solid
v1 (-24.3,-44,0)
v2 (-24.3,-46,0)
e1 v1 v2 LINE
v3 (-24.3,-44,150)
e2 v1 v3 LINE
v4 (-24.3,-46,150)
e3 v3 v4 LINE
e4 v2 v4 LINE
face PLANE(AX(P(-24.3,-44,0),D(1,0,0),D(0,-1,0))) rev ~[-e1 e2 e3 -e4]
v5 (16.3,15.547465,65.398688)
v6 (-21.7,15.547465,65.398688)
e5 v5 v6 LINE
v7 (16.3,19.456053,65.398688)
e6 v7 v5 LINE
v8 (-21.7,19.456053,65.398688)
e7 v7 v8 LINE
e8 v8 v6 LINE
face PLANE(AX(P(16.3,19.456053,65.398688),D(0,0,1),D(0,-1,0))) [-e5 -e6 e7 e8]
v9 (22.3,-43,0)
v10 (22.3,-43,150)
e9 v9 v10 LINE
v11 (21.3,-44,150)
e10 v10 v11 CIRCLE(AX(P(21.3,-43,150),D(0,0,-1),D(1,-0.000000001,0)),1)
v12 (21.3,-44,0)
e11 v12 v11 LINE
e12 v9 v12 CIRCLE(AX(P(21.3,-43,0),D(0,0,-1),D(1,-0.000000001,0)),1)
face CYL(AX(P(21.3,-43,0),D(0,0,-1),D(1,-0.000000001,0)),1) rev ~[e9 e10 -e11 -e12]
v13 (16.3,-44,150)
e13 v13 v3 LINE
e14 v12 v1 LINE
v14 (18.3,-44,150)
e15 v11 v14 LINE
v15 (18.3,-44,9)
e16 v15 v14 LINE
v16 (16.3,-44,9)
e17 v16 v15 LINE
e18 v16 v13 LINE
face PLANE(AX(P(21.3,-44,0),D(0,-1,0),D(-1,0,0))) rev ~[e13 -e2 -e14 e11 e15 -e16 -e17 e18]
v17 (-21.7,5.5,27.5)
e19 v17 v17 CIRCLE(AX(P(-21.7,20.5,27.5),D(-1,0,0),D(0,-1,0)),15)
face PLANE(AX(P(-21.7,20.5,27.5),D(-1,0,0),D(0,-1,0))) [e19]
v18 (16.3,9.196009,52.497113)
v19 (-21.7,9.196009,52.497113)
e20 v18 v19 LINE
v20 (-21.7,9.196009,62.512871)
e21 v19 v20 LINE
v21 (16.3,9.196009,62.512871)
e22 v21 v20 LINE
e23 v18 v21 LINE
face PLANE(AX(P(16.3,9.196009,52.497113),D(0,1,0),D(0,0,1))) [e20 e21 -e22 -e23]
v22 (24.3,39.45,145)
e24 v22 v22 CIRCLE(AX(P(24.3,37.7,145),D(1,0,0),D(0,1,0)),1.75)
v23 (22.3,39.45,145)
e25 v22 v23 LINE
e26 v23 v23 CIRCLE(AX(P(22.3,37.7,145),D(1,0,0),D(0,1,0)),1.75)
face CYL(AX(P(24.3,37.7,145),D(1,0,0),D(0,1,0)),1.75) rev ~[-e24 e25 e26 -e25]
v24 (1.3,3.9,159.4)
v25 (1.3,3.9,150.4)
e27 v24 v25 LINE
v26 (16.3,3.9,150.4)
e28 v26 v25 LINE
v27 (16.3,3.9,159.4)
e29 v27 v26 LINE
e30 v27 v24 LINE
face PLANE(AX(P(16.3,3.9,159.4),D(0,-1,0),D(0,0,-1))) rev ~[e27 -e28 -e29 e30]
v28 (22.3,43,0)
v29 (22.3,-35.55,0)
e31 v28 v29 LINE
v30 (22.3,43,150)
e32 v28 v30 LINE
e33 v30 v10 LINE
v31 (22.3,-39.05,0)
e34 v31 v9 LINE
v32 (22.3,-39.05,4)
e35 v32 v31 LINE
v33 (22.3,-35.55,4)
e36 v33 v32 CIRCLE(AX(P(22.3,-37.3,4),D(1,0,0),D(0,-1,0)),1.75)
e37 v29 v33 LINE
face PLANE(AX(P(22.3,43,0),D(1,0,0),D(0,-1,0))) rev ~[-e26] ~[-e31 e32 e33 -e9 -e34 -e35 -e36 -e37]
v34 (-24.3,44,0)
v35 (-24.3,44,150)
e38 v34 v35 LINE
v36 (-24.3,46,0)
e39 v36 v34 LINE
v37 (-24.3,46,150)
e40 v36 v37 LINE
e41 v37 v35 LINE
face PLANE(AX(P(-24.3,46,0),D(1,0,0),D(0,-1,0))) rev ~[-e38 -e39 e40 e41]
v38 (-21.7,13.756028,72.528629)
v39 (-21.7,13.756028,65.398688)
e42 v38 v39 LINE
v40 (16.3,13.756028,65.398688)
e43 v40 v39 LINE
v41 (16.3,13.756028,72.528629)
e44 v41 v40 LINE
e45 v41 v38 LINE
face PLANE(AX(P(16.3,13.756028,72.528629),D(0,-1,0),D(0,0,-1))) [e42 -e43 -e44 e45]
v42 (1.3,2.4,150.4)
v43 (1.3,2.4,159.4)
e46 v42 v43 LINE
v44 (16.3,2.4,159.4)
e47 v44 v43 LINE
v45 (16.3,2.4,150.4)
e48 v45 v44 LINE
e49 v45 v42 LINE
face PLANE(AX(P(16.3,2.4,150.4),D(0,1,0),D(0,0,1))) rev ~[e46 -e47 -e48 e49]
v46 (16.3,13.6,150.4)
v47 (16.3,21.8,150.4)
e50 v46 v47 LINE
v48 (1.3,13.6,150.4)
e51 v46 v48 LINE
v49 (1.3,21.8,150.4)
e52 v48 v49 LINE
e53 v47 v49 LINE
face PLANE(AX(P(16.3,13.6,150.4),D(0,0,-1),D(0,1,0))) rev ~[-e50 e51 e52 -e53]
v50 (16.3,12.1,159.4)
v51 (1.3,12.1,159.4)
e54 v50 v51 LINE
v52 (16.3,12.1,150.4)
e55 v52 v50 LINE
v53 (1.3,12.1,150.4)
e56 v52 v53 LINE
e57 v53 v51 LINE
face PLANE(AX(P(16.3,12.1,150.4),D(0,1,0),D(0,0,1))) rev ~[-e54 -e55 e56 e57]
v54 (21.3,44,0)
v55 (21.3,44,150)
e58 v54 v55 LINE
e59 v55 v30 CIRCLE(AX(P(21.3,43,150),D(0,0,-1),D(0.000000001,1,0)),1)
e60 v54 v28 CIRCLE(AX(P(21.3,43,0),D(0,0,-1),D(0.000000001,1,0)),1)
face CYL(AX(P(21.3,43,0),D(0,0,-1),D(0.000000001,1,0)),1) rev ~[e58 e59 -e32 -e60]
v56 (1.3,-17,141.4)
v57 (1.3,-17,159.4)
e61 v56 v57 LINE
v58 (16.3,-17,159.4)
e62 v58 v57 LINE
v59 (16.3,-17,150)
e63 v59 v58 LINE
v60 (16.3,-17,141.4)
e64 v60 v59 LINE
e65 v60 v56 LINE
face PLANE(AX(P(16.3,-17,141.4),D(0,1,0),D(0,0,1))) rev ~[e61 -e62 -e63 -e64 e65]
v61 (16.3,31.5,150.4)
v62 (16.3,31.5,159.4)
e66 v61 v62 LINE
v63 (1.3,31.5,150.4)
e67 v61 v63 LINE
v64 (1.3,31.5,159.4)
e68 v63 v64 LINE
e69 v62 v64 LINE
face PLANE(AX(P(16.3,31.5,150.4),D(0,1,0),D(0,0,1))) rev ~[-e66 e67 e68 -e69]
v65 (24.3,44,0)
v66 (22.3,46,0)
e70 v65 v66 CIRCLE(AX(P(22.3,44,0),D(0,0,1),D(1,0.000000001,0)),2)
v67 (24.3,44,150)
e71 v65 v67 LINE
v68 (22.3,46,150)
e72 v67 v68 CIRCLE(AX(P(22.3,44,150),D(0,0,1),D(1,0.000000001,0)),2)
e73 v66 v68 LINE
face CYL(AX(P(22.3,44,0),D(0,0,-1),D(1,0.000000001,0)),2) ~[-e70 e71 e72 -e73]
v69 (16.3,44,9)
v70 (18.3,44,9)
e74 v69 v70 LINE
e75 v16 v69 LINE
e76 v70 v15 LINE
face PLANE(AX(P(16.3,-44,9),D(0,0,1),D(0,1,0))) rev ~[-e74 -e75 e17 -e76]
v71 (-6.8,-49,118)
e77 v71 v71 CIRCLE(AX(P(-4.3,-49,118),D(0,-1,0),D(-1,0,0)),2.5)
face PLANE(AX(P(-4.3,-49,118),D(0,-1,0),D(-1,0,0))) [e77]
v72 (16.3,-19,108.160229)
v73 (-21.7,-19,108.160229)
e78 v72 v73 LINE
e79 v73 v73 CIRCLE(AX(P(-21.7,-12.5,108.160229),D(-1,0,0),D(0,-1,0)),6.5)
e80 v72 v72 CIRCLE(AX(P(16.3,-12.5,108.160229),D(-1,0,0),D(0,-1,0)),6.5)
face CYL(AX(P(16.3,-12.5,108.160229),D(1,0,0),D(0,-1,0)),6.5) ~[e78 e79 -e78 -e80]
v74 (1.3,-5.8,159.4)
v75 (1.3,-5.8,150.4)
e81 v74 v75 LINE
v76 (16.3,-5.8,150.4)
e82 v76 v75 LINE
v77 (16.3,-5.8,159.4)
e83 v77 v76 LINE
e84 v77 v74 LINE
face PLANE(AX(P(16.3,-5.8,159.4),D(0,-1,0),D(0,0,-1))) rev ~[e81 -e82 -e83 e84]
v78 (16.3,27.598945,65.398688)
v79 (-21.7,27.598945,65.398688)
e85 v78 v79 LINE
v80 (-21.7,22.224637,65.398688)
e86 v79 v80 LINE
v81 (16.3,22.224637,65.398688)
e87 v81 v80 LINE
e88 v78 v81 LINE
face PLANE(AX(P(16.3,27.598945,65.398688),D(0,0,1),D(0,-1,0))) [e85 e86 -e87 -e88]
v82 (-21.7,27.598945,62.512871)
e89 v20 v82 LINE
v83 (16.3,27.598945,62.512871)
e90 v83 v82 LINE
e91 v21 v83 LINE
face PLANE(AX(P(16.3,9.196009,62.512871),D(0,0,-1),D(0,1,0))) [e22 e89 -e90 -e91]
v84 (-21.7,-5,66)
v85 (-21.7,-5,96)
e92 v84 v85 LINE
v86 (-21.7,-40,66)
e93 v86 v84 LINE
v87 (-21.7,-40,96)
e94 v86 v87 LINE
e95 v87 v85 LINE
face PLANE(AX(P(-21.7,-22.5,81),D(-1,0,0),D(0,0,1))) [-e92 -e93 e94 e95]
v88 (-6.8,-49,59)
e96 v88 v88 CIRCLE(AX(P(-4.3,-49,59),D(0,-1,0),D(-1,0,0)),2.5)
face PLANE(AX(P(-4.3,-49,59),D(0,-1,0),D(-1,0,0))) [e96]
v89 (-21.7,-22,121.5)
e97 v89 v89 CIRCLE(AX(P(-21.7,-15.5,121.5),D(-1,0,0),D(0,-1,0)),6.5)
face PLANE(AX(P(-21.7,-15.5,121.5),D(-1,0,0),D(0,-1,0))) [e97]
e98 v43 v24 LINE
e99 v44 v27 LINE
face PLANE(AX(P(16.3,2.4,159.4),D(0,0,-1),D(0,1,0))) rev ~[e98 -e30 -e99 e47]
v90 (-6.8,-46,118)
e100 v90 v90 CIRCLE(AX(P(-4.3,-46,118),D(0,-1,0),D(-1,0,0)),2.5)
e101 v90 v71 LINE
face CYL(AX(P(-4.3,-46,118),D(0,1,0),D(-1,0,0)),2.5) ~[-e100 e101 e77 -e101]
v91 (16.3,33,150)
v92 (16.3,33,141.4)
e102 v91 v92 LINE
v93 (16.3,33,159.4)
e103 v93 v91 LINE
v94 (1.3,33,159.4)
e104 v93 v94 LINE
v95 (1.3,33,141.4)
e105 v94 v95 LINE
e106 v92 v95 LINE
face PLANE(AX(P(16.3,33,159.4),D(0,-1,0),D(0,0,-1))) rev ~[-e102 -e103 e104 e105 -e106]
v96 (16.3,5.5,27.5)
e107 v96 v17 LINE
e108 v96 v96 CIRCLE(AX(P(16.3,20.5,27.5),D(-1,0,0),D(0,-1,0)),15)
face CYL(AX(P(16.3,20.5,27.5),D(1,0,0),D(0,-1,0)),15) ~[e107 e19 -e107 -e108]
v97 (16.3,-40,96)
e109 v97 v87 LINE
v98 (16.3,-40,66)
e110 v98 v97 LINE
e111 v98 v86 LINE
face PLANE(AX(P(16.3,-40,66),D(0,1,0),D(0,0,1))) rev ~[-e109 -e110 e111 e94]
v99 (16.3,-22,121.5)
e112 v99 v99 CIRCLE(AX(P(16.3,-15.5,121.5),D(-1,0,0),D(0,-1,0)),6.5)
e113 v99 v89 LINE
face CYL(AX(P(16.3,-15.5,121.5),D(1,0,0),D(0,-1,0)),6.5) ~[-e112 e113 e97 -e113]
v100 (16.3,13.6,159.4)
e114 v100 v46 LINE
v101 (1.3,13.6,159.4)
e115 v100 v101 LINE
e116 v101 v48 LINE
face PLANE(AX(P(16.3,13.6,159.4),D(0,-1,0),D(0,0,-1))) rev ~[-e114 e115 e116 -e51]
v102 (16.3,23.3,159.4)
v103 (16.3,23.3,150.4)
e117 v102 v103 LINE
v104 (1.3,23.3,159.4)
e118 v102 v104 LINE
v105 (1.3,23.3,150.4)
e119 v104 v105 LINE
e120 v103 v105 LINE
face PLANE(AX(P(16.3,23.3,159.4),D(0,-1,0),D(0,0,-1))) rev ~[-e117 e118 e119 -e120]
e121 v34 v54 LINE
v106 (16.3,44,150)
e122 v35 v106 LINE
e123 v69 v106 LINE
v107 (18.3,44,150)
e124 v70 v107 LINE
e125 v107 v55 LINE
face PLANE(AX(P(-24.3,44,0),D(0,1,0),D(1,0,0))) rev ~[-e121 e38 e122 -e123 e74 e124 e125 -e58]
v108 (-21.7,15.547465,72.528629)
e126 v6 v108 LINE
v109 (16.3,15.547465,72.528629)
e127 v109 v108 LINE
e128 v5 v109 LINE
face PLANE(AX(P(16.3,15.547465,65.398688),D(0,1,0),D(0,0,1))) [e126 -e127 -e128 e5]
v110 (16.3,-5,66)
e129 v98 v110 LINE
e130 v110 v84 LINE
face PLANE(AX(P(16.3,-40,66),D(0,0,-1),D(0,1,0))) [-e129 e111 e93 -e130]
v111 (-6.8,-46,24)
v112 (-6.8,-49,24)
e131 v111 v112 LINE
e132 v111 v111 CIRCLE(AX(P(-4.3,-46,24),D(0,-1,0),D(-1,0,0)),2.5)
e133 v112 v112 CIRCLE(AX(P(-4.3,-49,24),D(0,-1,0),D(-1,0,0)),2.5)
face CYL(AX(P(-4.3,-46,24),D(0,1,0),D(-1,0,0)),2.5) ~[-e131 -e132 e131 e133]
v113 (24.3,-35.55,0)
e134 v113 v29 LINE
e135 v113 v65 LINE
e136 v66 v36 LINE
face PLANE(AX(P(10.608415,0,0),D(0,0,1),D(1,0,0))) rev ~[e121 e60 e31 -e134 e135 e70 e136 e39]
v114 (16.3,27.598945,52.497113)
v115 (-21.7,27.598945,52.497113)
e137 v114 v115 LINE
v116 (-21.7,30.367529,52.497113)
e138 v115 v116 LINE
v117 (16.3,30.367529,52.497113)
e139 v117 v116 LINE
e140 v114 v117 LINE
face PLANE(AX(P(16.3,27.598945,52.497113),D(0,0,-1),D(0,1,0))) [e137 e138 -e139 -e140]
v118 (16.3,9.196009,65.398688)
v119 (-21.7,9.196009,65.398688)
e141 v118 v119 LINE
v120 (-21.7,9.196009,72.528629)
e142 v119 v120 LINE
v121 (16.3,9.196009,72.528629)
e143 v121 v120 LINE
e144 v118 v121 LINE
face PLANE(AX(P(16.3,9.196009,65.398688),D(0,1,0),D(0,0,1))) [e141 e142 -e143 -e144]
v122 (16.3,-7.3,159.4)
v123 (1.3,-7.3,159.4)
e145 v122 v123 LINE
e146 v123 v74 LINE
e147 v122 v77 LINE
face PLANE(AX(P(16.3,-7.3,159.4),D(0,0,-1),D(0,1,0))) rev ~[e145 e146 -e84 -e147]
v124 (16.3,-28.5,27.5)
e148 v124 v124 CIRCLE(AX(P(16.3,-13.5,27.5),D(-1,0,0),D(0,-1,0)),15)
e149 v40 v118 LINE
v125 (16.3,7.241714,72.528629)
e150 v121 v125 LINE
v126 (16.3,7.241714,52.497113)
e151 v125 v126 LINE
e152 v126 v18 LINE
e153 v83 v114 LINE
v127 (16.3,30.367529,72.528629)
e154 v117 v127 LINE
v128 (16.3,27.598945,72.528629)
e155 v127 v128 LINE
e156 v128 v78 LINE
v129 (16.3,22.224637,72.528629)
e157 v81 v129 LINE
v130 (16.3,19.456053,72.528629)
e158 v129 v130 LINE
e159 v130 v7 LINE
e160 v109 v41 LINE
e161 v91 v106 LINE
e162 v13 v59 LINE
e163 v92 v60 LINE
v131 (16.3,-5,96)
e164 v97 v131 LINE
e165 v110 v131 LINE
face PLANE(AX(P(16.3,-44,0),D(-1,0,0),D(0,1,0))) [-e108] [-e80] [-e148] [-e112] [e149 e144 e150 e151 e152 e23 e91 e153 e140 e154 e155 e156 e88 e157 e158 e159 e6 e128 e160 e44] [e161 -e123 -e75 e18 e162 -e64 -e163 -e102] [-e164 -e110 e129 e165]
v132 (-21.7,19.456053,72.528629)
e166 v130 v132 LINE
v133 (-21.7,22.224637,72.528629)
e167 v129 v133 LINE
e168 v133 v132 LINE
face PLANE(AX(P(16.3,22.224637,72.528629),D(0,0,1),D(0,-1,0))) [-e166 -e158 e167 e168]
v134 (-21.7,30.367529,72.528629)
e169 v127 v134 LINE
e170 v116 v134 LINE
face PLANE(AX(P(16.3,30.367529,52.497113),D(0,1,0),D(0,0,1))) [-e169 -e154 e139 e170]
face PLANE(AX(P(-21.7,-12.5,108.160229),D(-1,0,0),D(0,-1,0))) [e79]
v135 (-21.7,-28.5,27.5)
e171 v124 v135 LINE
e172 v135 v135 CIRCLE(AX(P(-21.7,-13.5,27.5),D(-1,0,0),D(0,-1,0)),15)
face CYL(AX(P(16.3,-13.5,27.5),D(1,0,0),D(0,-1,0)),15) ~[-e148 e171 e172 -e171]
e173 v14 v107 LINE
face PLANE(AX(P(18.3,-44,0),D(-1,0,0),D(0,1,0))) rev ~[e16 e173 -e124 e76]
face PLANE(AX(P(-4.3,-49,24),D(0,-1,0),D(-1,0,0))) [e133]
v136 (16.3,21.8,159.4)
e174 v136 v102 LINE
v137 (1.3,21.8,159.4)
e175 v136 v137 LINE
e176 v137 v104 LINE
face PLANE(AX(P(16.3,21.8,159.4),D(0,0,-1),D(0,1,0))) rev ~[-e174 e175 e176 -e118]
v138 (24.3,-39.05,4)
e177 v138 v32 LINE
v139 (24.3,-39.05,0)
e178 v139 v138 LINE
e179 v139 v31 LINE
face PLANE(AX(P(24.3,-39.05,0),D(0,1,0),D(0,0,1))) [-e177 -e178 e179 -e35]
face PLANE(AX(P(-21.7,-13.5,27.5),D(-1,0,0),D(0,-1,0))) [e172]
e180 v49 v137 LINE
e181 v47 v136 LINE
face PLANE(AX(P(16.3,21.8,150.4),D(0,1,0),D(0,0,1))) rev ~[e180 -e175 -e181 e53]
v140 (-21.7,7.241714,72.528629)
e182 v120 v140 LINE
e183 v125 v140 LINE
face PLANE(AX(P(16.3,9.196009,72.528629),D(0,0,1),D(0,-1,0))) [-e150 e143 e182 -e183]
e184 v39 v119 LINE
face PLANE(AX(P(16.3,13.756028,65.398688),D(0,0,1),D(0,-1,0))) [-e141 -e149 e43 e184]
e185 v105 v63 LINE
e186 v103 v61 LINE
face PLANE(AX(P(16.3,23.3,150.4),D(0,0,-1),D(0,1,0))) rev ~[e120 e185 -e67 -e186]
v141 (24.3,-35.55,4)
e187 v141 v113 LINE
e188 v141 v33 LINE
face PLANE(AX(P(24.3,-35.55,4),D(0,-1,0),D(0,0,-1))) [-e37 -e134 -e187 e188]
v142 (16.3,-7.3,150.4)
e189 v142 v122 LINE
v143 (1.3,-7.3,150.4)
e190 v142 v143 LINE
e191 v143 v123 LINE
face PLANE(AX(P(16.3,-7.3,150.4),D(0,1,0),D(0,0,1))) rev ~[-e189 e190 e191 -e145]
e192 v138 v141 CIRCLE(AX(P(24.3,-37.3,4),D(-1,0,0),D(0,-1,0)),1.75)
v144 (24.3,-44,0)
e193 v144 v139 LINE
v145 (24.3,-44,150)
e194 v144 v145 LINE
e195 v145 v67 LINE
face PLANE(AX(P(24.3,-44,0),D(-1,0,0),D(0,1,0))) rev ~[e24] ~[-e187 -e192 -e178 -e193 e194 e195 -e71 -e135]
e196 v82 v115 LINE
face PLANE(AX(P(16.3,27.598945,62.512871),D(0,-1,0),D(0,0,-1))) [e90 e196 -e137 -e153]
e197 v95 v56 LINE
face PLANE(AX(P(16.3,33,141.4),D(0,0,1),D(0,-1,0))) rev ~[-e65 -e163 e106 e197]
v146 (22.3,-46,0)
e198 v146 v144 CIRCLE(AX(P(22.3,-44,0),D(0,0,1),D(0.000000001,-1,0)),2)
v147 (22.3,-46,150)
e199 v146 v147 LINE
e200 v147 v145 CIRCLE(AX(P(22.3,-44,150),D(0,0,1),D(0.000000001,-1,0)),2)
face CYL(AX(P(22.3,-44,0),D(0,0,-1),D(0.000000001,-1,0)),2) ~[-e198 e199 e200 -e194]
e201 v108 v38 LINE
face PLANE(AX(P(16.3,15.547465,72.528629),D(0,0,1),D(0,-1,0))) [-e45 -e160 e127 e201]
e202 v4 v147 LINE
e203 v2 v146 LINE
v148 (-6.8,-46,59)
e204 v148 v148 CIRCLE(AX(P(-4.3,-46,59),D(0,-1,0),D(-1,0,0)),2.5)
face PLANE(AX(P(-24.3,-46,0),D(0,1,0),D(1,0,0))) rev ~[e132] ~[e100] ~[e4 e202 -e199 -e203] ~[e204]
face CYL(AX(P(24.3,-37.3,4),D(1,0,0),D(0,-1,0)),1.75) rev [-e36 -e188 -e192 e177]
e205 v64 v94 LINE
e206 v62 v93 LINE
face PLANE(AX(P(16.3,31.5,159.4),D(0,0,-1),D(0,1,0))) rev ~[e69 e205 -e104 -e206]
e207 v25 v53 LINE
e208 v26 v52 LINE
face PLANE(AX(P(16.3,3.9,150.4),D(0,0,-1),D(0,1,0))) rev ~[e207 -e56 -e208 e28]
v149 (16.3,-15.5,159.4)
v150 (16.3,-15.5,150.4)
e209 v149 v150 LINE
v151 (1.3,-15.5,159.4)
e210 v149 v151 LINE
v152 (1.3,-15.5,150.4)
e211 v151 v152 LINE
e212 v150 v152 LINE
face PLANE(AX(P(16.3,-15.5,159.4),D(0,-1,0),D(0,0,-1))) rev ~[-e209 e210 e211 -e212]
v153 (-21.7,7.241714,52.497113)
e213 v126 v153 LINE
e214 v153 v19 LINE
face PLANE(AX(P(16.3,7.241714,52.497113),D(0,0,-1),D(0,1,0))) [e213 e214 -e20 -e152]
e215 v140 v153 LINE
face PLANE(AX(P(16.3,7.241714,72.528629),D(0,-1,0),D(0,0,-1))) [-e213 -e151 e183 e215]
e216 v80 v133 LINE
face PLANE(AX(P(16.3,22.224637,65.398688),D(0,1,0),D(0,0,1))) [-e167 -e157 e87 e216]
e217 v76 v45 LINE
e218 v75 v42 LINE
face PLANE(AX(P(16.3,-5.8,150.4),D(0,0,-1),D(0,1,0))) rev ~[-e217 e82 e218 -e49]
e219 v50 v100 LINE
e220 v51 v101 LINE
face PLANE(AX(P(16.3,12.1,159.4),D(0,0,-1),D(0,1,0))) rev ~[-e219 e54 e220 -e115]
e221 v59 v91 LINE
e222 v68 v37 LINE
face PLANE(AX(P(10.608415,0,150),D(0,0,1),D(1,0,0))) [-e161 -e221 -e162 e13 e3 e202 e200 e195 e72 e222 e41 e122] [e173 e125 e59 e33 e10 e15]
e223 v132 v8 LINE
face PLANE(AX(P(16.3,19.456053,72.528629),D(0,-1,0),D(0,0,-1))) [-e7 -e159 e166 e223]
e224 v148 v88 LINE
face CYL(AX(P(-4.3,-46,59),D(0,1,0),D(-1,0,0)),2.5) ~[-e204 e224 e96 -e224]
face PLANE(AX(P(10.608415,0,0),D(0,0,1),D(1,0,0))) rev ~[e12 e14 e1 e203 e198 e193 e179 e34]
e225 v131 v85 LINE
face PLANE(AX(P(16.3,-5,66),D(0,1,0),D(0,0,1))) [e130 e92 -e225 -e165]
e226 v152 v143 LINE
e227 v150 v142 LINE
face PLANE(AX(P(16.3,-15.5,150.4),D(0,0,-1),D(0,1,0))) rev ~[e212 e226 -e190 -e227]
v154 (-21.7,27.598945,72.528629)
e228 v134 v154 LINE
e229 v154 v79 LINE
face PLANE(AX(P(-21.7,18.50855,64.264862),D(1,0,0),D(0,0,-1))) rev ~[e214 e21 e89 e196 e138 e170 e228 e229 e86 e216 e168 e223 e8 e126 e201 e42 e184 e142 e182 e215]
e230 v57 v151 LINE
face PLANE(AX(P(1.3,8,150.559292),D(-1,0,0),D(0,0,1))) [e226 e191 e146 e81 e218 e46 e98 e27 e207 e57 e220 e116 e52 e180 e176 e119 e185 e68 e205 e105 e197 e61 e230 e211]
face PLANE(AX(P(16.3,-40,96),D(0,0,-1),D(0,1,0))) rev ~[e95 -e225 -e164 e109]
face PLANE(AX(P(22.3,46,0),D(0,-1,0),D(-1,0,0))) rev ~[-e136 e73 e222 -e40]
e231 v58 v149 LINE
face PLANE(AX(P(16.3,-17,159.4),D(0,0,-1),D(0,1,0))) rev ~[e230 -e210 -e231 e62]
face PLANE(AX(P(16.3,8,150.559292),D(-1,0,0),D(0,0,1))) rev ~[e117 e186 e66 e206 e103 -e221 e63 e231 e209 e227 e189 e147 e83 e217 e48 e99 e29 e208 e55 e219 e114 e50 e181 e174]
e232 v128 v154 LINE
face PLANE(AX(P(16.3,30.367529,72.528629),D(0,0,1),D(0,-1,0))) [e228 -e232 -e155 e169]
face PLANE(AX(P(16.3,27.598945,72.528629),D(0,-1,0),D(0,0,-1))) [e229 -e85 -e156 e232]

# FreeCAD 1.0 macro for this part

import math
import FreeCAD as App
import Part
import Sketcher
Q = App.Units.Quantity

doc = App.newDocument("Part")
body = doc.addObject("PartDesign::Body", "Body")

# Sketch on XY plane
sketch1 = body.newObject("Sketcher::SketchObject", "Sketch")
sketch1.AttachmentSupport = (doc.getObject("XY_Plane"), [""])
sketch1.MapMode = "FlatFace"
sketch1.addGeometry(Part.LineSegment(App.Vector(-24.3, 44, 0), App.Vector(21.3, 44, 0)), False)
sketch1.addGeometry(Part.ArcOfCircle(Part.Circle(App.Vector(21.3, 43, 0), App.Vector(0, 0, 1), 1), math.radians(0), math.radians(90)), False)
sketch1.addGeometry(Part.LineSegment(App.Vector(22.3, 43, 0), App.Vector(22.3, -43, 0)), False)
sketch1.addGeometry(Part.ArcOfCircle(Part.Circle(App.Vector(21.3, -43, 0), App.Vector(0, 0, 1), 1), math.radians(-90), math.radians(0)), False)
sketch1.addGeometry(Part.LineSegment(App.Vector(21.3, -44, 0), App.Vector(-24.3, -44, 0)), False)
sketch1.addGeometry(Part.LineSegment(App.Vector(-24.3, -44, 0), App.Vector(-24.3, -46, 0)), False)
sketch1.addGeometry(Part.LineSegment(App.Vector(-24.3, -46, 0), App.Vector(22.3, -46, 0)), False)
sketch1.addGeometry(Part.ArcOfCircle(Part.Circle(App.Vector(22.3, -44, 0), App.Vector(0, 0, 1), 2), math.radians(-90), math.radians(0)), False)
sketch1.addGeometry(Part.LineSegment(App.Vector(24.3, -44, 0), App.Vector(24.3, 44, 0)), False)
sketch1.addGeometry(Part.ArcOfCircle(Part.Circle(App.Vector(22.3, 44, 0), App.Vector(0, 0, 1), 2), math.radians(0), math.radians(90)), False)
sketch1.addGeometry(Part.LineSegment(App.Vector(22.3, 46, 0), App.Vector(-24.3, 46, 0)), False)
sketch1.addGeometry(Part.LineSegment(App.Vector(-24.3, 46, 0), App.Vector(-24.3, 44, 0)), False)
sketch1.addConstraint(Sketcher.Constraint("Tangent", 0, 2, 1, 2))
sketch1.addConstraint(Sketcher.Constraint("Tangent", 1, 1, 2, 1))
sketch1.addConstraint(Sketcher.Constraint("Tangent", 2, 2, 3, 2))
sketch1.addConstraint(Sketcher.Constraint("Tangent", 3, 1, 4, 1))
sketch1.addConstraint(Sketcher.Constraint("Coincident", 4, 2, 5, 1))
sketch1.addConstraint(Sketcher.Constraint("Coincident", 5, 2, 6, 1))
sketch1.addConstraint(Sketcher.Constraint("Tangent", 6, 2, 7, 1))
sketch1.addConstraint(Sketcher.Constraint("Tangent", 7, 2, 8, 1))
sketch1.addConstraint(Sketcher.Constraint("Tangent", 8, 2, 9, 1))
sketch1.addConstraint(Sketcher.Constraint("Tangent", 9, 2, 10, 1))
sketch1.addConstraint(Sketcher.Constraint("Coincident", 10, 2, 11, 1))
sketch1.addConstraint(Sketcher.Constraint("Coincident", 11, 2, 0, 1))
sketch1.addConstraint(Sketcher.Constraint("Horizontal", 0))
sketch1.addConstraint(Sketcher.Constraint("Vertical", 2))
sketch1.addConstraint(Sketcher.Constraint("Horizontal", 4))
sketch1.addConstraint(Sketcher.Constraint("Vertical", 5))
sketch1.addConstraint(Sketcher.Constraint("Horizontal", 6))
sketch1.addConstraint(Sketcher.Constraint("Vertical", 8))
sketch1.addConstraint(Sketcher.Constraint("Horizontal", 10))
sketch1.addConstraint(Sketcher.Constraint("Vertical", 11))
sketch1.addConstraint(Sketcher.Constraint("Equal", 1, 3))
sketch1.addConstraint(Sketcher.Constraint("Equal", 7, 9))
sketch1.addConstraint(Sketcher.Constraint("Symmetric", 4, 2, 8, 2, -1, 1))
sketch1.addConstraint(Sketcher.Constraint("Symmetric", 7, 2, 11, 2, -1, 1))
sketch1.addConstraint(Sketcher.Constraint("Horizontal", 9, 3, 0, 2))
sketch1.addConstraint(Sketcher.Constraint("Vertical", 9, 3, 1, 1))
sketch1.addConstraint(Sketcher.Constraint("Radius", 1, Q("1 mm")))
sketch1.addConstraint(Sketcher.Constraint("Radius", 7, Q("2 mm")))
sketch1.addConstraint(Sketcher.Constraint("DistanceY", 2, 2, 2, 1, Q("86 mm")))
sketch1.addConstraint(Sketcher.Constraint("DistanceX", 0, 1, 0, 2, Q("45.6 mm")))
pad1 = body.newObject("PartDesign::Pad", "Pad")
pad1.Profile = sketch1
pad1.Length = 150

# Sketch on XY plane
sketch2 = body.newObject("Sketcher::SketchObject", "Sketch001")
sketch2.AttachmentSupport = (doc.getObject("XY_Plane"), [""])
sketch2.MapMode = "FlatFace"
sketch2.addGeometry(Part.LineSegment(App.Vector(18.3, 44, 0), App.Vector(18.3, -44, 0)), False)
sketch2.addGeometry(Part.LineSegment(App.Vector(18.3, -44, 0), App.Vector(16.3, -44, 0)), False)
sketch2.addGeometry(Part.LineSegment(App.Vector(16.3, -44, 0), App.Vector(16.3, 44, 0)), False)
sketch2.addGeometry(Part.LineSegment(App.Vector(16.3, 44, 0), App.Vector(18.3, 44, 0)), False)
sketch2.addConstraint(Sketcher.Constraint("Coincident", 0, 2, 1, 1))
sketch2.addConstraint(Sketcher.Constraint("Coincident", 1, 2, 2, 1))
sketch2.addConstraint(Sketcher.Constraint("Coincident", 2, 2, 3, 1))
sketch2.addConstraint(Sketcher.Constraint("Coincident", 3, 2, 0, 1))
sketch2.addConstraint(Sketcher.Constraint("Vertical", 0))
sketch2.addConstraint(Sketcher.Constraint("Horizontal", 1))
sketch2.addConstraint(Sketcher.Constraint("Vertical", 2))
sketch2.addConstraint(Sketcher.Constraint("Horizontal", 3))
sketch2.addConstraint(Sketcher.Constraint("DistanceX", 1, 2, 1, 1, Q("2 mm")))
sketch2.addConstraint(Sketcher.Constraint("DistanceY", 0, 2, 0, 1, Q("88 mm")))
sketch2.addConstraint(Sketcher.Constraint("DistanceY", 0, 2, -1, 1, Q("44 mm")))
sketch2.addConstraint(Sketcher.Constraint("DistanceX", -1, 1, 0, 2, Q("18.3 mm")))
pad2 = body.newObject("PartDesign::Pad", "Pad001")
pad2.Profile = sketch2
pad2.Length = 150

# Sketch on YZ plane
sketch3 = body.newObject("Sketcher::SketchObject", "Sketch002")
sketch3.AttachmentSupport = (doc.getObject("YZ_Plane"), [""])
sketch3.MapMode = "FlatFace"
sketch3.AttachmentOffset = App.Placement(App.Vector(0, 0, 16.3), App.Rotation())
sketch3.addGeometry(Part.Circle(App.Vector(20.5, 27.5, 0), App.Vector(0, 0, 1), 15), False)
sketch3.addGeometry(Part.Circle(App.Vector(-13.5, 27.5, 0), App.Vector(0, 0, 1), 15), False)
sketch3.addGeometry(Part.Circle(App.Vector(-12.5, 108.2, 0), App.Vector(0, 0, 1), 6.5), False)
sketch3.addGeometry(Part.Circle(App.Vector(-15.5, 121.5, 0), App.Vector(0, 0, 1), 6.5), False)
sketch3.addGeometry(Part.LineSegment(App.Vector(-5, 66, 0), App.Vector(-40, 66, 0)), False)
sketch3.addGeometry(Part.LineSegment(App.Vector(-40, 66, 0), App.Vector(-40, 96, 0)), False)
sketch3.addGeometry(Part.LineSegment(App.Vector(-40, 96, 0), App.Vector(-5, 96, 0)), False)
sketch3.addGeometry(Part.LineSegment(App.Vector(-5, 96, 0), App.Vector(-5, 66, 0)), False)
sketch3.addGeometry(Part.LineSegment(App.Vector(30.4, 72.5, 0), App.Vector(30.4, 52.5, 0)), False)
sketch3.addGeometry(Part.LineSegment(App.Vector(30.4, 52.5, 0), App.Vector(27.6, 52.5, 0)), False)
sketch3.addGeometry(Part.LineSegment(App.Vector(27.6, 52.5, 0), App.Vector(27.6, 62.5, 0)), False)
sketch3.addGeometry(Part.LineSegment(App.Vector(27.6, 62.5, 0), App.Vector(9.2, 62.5, 0)), False)
sketch3.addGeometry(Part.LineSegment(App.Vector(9.2, 62.5, 0), App.Vector(9.2, 52.5, 0)), False)
sketch3.addGeometry(Part.LineSegment(App.Vector(9.2, 52.5, 0), App.Vector(7.2, 52.5, 0)), False)
sketch3.addGeometry(Part.LineSegment(App.Vector(7.2, 52.5, 0), App.Vector(7.2, 72.5, 0)), False)
sketch3.addGeometry(Part.LineSegment(App.Vector(7.2, 72.5, 0), App.Vector(9.2, 72.5, 0)), False)
sketch3.addGeometry(Part.LineSegment(App.Vector(9.2, 72.5, 0), App.Vector(9.2, 65.4, 0)), False)
sketch3.addGeometry(Part.LineSegment(App.Vector(9.2, 65.4, 0), App.Vector(13.8, 65.4, 0)), False)
sketch3.addGeometry(Part.LineSegment(App.Vector(13.8, 65.4, 0), App.Vector(13.8, 72.5, 0)), False)
sketch3.addGeometry(Part.LineSegment(App.Vector(13.8, 72.5, 0), App.Vector(15.5, 72.5, 0)), False)
sketch3.addGeometry(Part.LineSegment(App.Vector(15.5, 72.5, 0), App.Vector(15.5, 65.4, 0)), False)
sketch3.addGeometry(Part.LineSegment(App.Vector(15.5, 65.4, 0), App.Vector(19.5, 65.4, 0)), False)
sketch3.addGeometry(Part.LineSegment(App.Vector(19.5, 65.4, 0), App.Vector(19.5, 72.5, 0)), False)
sketch3.addGeometry(Part.LineSegment(App.Vector(19.5, 72.5, 0), App.Vector(22.2, 72.5, 0)), False)
sketch3.addGeometry(Part.LineSegment(App.Vector(22.2, 72.5, 0), App.Vector(22.2, 65.4, 0)), False)
sketch3.addGeometry(Part.LineSegment(App.Vector(22.2, 65.4, 0), App.Vector(27.6, 65.4, 0)), False)
sketch3.addGeometry(Part.LineSegment(App.Vector(27.6, 65.4, 0), App.Vector(27.6, 72.5, 0)), False)
sketch3.addGeometry(Part.LineSegment(App.Vector(27.6, 72.5, 0), App.Vector(30.4, 72.5, 0)), False)
sketch3.addConstraint(Sketcher.Constraint("Coincident", 4, 2, 5, 1))
sketch3.addConstraint(Sketcher.Constraint("Coincident", 5, 2, 6, 1))
sketch3.addConstraint(Sketcher.Constraint("Coincident", 6, 2, 7, 1))
sketch3.addConstraint(Sketcher.Constraint("Coincident", 7, 2, 4, 1))
sketch3.addConstraint(Sketcher.Constraint("Coincident", 8, 2, 9, 1))
sketch3.addConstraint(Sketcher.Constraint("Coincident", 9, 2, 10, 1))
sketch3.addConstraint(Sketcher.Constraint("Coincident", 10, 2, 11, 1))
sketch3.addConstraint(Sketcher.Constraint("Coincident", 11, 2, 12, 1))
sketch3.addConstraint(Sketcher.Constraint("Coincident", 12, 2, 13, 1))
sketch3.addConstraint(Sketcher.Constraint("Coincident", 13, 2, 14, 1))
sketch3.addConstraint(Sketcher.Constraint("Coincident", 14, 2, 15, 1))
sketch3.addConstraint(Sketcher.Constraint("Coincident", 15, 2, 16, 1))
sketch3.addConstraint(Sketcher.Constraint("Coincident", 16, 2, 17, 1))
sketch3.addConstraint(Sketcher.Constraint("Coincident", 17, 2, 18, 1))
sketch3.addConstraint(Sketcher.Constraint("Coincident", 18, 2, 19, 1))
sketch3.addConstraint(Sketcher.Constraint("Coincident", 19, 2, 20, 1))
sketch3.addConstraint(Sketcher.Constraint("Coincident", 20, 2, 21, 1))
sketch3.addConstraint(Sketcher.Constraint("Coincident", 21, 2, 22, 1))
sketch3.addConstraint(Sketcher.Constraint("Coincident", 22, 2, 23, 1))
sketch3.addConstraint(Sketcher.Constraint("Coincident", 23, 2, 24, 1))
sketch3.addConstraint(Sketcher.Constraint("Coincident", 24, 2, 25, 1))
sketch3.addConstraint(Sketcher.Constraint("Coincident", 25, 2, 26, 1))
sketch3.addConstraint(Sketcher.Constraint("Coincident", 26, 2, 27, 1))
sketch3.addConstraint(Sketcher.Constraint("Coincident", 27, 2, 8, 1))
sketch3.addConstraint(Sketcher.Constraint("Horizontal", 4))
sketch3.addConstraint(Sketcher.Constraint("Vertical", 5))
sketch3.addConstraint(Sketcher.Constraint("Horizontal", 6))
sketch3.addConstraint(Sketcher.Constraint("Vertical", 7))
sketch3.addConstraint(Sketcher.Constraint("Vertical", 8))
sketch3.addConstraint(Sketcher.Constraint("Horizontal", 9))
sketch3.addConstraint(Sketcher.Constraint("Vertical", 10))
sketch3.addConstraint(Sketcher.Constraint("Horizontal", 11))
sketch3.addConstraint(Sketcher.Constraint("Vertical", 12))
sketch3.addConstraint(Sketcher.Constraint("Horizontal", 13))
sketch3.addConstraint(Sketcher.Constraint("Vertical", 14))
sketch3.addConstraint(Sketcher.Constraint("Horizontal", 15))
sketch3.addConstraint(Sketcher.Constraint("Vertical", 16))
sketch3.addConstraint(Sketcher.Constraint("Horizontal", 17))
sketch3.addConstraint(Sketcher.Constraint("Vertical", 18))
sketch3.addConstraint(Sketcher.Constraint("Horizontal", 19))
sketch3.addConstraint(Sketcher.Constraint("Vertical", 20))
sketch3.addConstraint(Sketcher.Constraint("Horizontal", 21))
sketch3.addConstraint(Sketcher.Constraint("Vertical", 22))
sketch3.addConstraint(Sketcher.Constraint("Horizontal", 23))
sketch3.addConstraint(Sketcher.Constraint("Vertical", 24))
sketch3.addConstraint(Sketcher.Constraint("Horizontal", 25))
sketch3.addConstraint(Sketcher.Constraint("Vertical", 26))
sketch3.addConstraint(Sketcher.Constraint("Horizontal", 27))
sketch3.addConstraint(Sketcher.Constraint("Equal", 0, 1))
sketch3.addConstraint(Sketcher.Constraint("Equal", 2, 3))
sketch3.addConstraint(Sketcher.Constraint("Horizontal", 0, 3, 1, 3))
sketch3.addConstraint(Sketcher.Constraint("Horizontal", 9, 2, 12, 2))
sketch3.addConstraint(Sketcher.Constraint("Horizontal", 15, 2, 18, 2))
sketch3.addConstraint(Sketcher.Constraint("Horizontal", 17, 2, 20, 2))
sketch3.addConstraint(Sketcher.Constraint("Horizontal", 19, 2, 22, 2))
sketch3.addConstraint(Sketcher.Constraint("Horizontal", 21, 2, 24, 2))
sketch3.addConstraint(Sketcher.Constraint("Horizontal", 23, 2, 26, 2))
sketch3.addConstraint(Sketcher.Constraint("Vertical", 12, 2, 15, 2))
sketch3.addConstraint(Sketcher.Constraint("Vertical", 10, 2, 25, 2))
sketch3.addConstraint(Sketcher.Constraint("Equal", 9, 23))
sketch3.addConstraint(Sketcher.Constraint("Diameter", 0, Q("30 mm")))
sketch3.addConstraint(Sketcher.Constraint("Diameter", 2, Q("13 mm")))
sketch3.addConstraint(Sketcher.Constraint("DistanceX", 4, 2, 4, 1, Q("35 mm")))
sketch3.addConstraint(Sketcher.Constraint("DistanceY", 5, 1, 5, 2, Q("30 mm")))
sketch3.addConstraint(Sketcher.Constraint("DistanceX", 4, 2, -1, 1, Q("40 mm")))
sketch3.addConstraint(Sketcher.Constraint("DistanceY", -1, 1, 4, 2, Q("66 mm")))
sketch3.addConstraint(Sketcher.Constraint("DistanceX", 1, 3, 0, 3, Q("34 mm")))
sketch3.addConstraint(Sketcher.Constraint("DistanceX", 1, 3, 2, 3, Q("1 mm")))
sketch3.addConstraint(Sketcher.Constraint("DistanceX", 3, 3, 2, 3, Q("3 mm")))
sketch3.addConstraint(Sketcher.Constraint("DistanceY", 1, 3, 3, 3, Q("94 mm")))
sketch3.addConstraint(Sketcher.Constraint("DistanceX", -1, 1, 0, 3, Q("20.5 mm")))
sketch3.addConstraint(Sketcher.Constraint("DistanceY", -1, 1, 0, 3, Q("27.5 mm")))
sketch3.addConstraint(Sketcher.Constraint("DistanceX", 17, 1, 17, 2, Q("4.56002 mm")))
sketch3.addConstraint(Sketcher.Constraint("DistanceX", 21, 1, 21, 2, Q("3.908588 mm")))
sketch3.addConstraint(Sketcher.Constraint("DistanceX", 25, 1, 25, 2, Q("5.374309 mm")))
sketch3.addConstraint(Sketcher.Constraint("DistanceY", 16, 2, 16, 1, Q("7.129941 mm")))
sketch3.addConstraint(Sketcher.Constraint("DistanceX", 9, 2, 9, 1, Q("2.768583 mm")))
sketch3.addConstraint(Sketcher.Constraint("DistanceX", 11, 2, 11, 1, Q("18.402937 mm")))
sketch3.addConstraint(Sketcher.Constraint("DistanceX", 13, 2, 13, 1, Q("1.954294 mm")))
sketch3.addConstraint(Sketcher.Constraint("DistanceY", 8, 2, 8, 1, Q("20.031515 mm")))
sketch3.addConstraint(Sketcher.Constraint("DistanceY", 10, 1, 10, 2, Q("10.015758 mm")))
sketch3.addConstraint(Sketcher.Constraint("DistanceY", -1, 1, 2, 3, Q("108.160229 mm")))
sketch3.addConstraint(Sketcher.Constraint("DistanceX", -1, 1, 8, 2, Q("30.367529 mm")))
sketch3.addConstraint(Sketcher.Constraint("DistanceY", -1, 1, 10, 2, Q("62.512871 mm")))
pad3 = body.newObject("PartDesign::Pad", "Pad002")
pad3.Profile = sketch3
pad3.Length = 38
pad3.Reversed = True

# Sketch on YZ plane
sketch4 = body.newObject("Sketcher::SketchObject", "Sketch003")
sketch4.AttachmentSupport = (doc.getObject("YZ_Plane"), [""])
sketch4.MapMode = "FlatFace"
sketch4.AttachmentOffset = App.Placement(App.Vector(0, 0, 16.3), App.Rotation())
sketch4.addGeometry(Part.LineSegment(App.Vector(33, 159.4, 0), App.Vector(33, 141.4, 0)), False)
sketch4.addGeometry(Part.LineSegment(App.Vector(33, 141.4, 0), App.Vector(-17, 141.4, 0)), False)
sketch4.addGeometry(Part.LineSegment(App.Vector(-17, 141.4, 0), App.Vector(-17, 159.4, 0)), False)
sketch4.addGeometry(Part.LineSegment(App.Vector(-17, 159.4, 0), App.Vector(-15.5, 159.4, 0)), False)
sketch4.addGeometry(Part.LineSegment(App.Vector(-15.5, 159.4, 0), App.Vector(-15.5, 150.4, 0)), False)
sketch4.addGeometry(Part.LineSegment(App.Vector(-15.5, 150.4, 0), App.Vector(-7.3, 150.4, 0)), False)
sketch4.addGeometry(Part.LineSegment(App.Vector(-7.3, 150.4, 0), App.Vector(-7.3, 159.4, 0)), False)
sketch4.addGeometry(Part.LineSegment(App.Vector(-7.3, 159.4, 0), App.Vector(-5.8, 159.4, 0)), False)
sketch4.addGeometry(Part.LineSegment(App.Vector(-5.8, 159.4, 0), App.Vector(-5.8, 150.4, 0)), False)
sketch4.addGeometry(Part.LineSegment(App.Vector(-5.8, 150.4, 0), App.Vector(2.4, 150.4, 0)), False)
sketch4.addGeometry(Part.LineSegment(App.Vector(2.4, 150.4, 0), App.Vector(2.4, 159.4, 0)), False)
sketch4.addGeometry(Part.LineSegment(App.Vector(2.4, 159.4, 0), App.Vector(3.9, 159.4, 0)), False)
sketch4.addGeometry(Part.LineSegment(App.Vector(3.9, 159.4, 0), App.Vector(3.9, 150.4, 0)), False)
sketch4.addGeometry(Part.LineSegment(App.Vector(3.9, 150.4, 0), App.Vector(12.1, 150.4, 0)), False)
sketch4.addGeometry(Part.LineSegment(App.Vector(12.1, 150.4, 0), App.Vector(12.1, 159.4, 0)), False)
sketch4.addGeometry(Part.LineSegment(App.Vector(12.1, 159.4, 0), App.Vector(13.6, 159.4, 0)), False)
sketch4.addGeometry(Part.LineSegment(App.Vector(13.6, 159.4, 0), App.Vector(13.6, 150.4, 0)), False)
sketch4.addGeometry(Part.LineSegment(App.Vector(13.6, 150.4, 0), App.Vector(21.8, 150.4, 0)), False)
sketch4.addGeometry(Part.LineSegment(App.Vector(21.8, 150.4, 0), App.Vector(21.8, 159.4, 0)), False)
sketch4.addGeometry(Part.LineSegment(App.Vector(21.8, 159.4, 0), App.Vector(23.3, 159.4, 0)), False)
sketch4.addGeometry(Part.LineSegment(App.Vector(23.3, 159.4, 0), App.Vector(23.3, 150.4, 0)), False)
sketch4.addGeometry(Part.LineSegment(App.Vector(23.3, 150.4, 0), App.Vector(31.5, 150.4, 0)), False)
sketch4.addGeometry(Part.LineSegment(App.Vector(31.5, 150.4, 0), App.Vector(31.5, 159.4, 0)), False)
sketch4.addGeometry(Part.LineSegment(App.Vector(31.5, 159.4, 0), App.Vector(33, 159.4, 0)), False)
sketch4.addConstraint(Sketcher.Constraint("Coincident", 0, 2, 1, 1))
sketch4.addConstraint(Sketcher.Constraint("Coincident", 1, 2, 2, 1))
sketch4.addConstraint(Sketcher.Constraint("Coincident", 2, 2, 3, 1))
sketch4.addConstraint(Sketcher.Constraint("Coincident", 3, 2, 4, 1))
sketch4.addConstraint(Sketcher.Constraint("Coincident", 4, 2, 5, 1))
sketch4.addConstraint(Sketcher.Constraint("Coincident", 5, 2, 6, 1))
sketch4.addConstraint(Sketcher.Constraint("Coincident", 6, 2, 7, 1))
sketch4.addConstraint(Sketcher.Constraint("Coincident", 7, 2, 8, 1))
sketch4.addConstraint(Sketcher.Constraint("Coincident", 8, 2, 9, 1))
sketch4.addConstraint(Sketcher.Constraint("Coincident", 9, 2, 10, 1))
sketch4.addConstraint(Sketcher.Constraint("Coincident", 10, 2, 11, 1))
sketch4.addConstraint(Sketcher.Constraint("Coincident", 11, 2, 12, 1))
sketch4.addConstraint(Sketcher.Constraint("Coincident", 12, 2, 13, 1))
sketch4.addConstraint(Sketcher.Constraint("Coincident", 13, 2, 14, 1))
sketch4.addConstraint(Sketcher.Constraint("Coincident", 14, 2, 15, 1))
sketch4.addConstraint(Sketcher.Constraint("Coincident", 15, 2, 16, 1))
sketch4.addConstraint(Sketcher.Constraint("Coincident", 16, 2, 17, 1))
sketch4.addConstraint(Sketcher.Constraint("Coincident", 17, 2, 18, 1))
sketch4.addConstraint(Sketcher.Constraint("Coincident", 18, 2, 19, 1))
sketch4.addConstraint(Sketcher.Constraint("Coincident", 19, 2, 20, 1))
sketch4.addConstraint(Sketcher.Constraint("Coincident", 20, 2, 21, 1))
sketch4.addConstraint(Sketcher.Constraint("Coincident", 21, 2, 22, 1))
sketch4.addConstraint(Sketcher.Constraint("Coincident", 22, 2, 23, 1))
sketch4.addConstraint(Sketcher.Constraint("Coincident", 23, 2, 0, 1))
sketch4.addConstraint(Sketcher.Constraint("Vertical", 0))
sketch4.addConstraint(Sketcher.Constraint("Horizontal", 1))
sketch4.addConstraint(Sketcher.Constraint("Vertical", 2))
sketch4.addConstraint(Sketcher.Constraint("Horizontal", 3))
sketch4.addConstraint(Sketcher.Constraint("Vertical", 4))
sketch4.addConstraint(Sketcher.Constraint("Horizontal", 5))
sketch4.addConstraint(Sketcher.Constraint("Vertical", 6))
sketch4.addConstraint(Sketcher.Constraint("Horizontal", 7))
sketch4.addConstraint(Sketcher.Constraint("Vertical", 8))
sketch4.addConstraint(Sketcher.Constraint("Horizontal", 9))
sketch4.addConstraint(Sketcher.Constraint("Vertical", 10))
sketch4.addConstraint(Sketcher.Constraint("Horizontal", 11))
sketch4.addConstraint(Sketcher.Constraint("Vertical", 12))
sketch4.addConstraint(Sketcher.Constraint("Horizontal", 13))
sketch4.addConstraint(Sketcher.Constraint("Vertical", 14))
sketch4.addConstraint(Sketcher.Constraint("Horizontal", 15))
sketch4.addConstraint(Sketcher.Constraint("Vertical", 16))
sketch4.addConstraint(Sketcher.Constraint("Horizontal", 17))
sketch4.addConstraint(Sketcher.Constraint("Vertical", 18))
sketch4.addConstraint(Sketcher.Constraint("Horizontal", 19))
sketch4.addConstraint(Sketcher.Constraint("Vertical", 20))
sketch4.addConstraint(Sketcher.Constraint("Horizontal", 21))
sketch4.addConstraint(Sketcher.Constraint("Vertical", 22))
sketch4.addConstraint(Sketcher.Constraint("Horizontal", 23))
sketch4.addConstraint(Sketcher.Constraint("Horizontal", 3, 2, 6, 2))
sketch4.addConstraint(Sketcher.Constraint("Horizontal", 5, 2, 8, 2))
sketch4.addConstraint(Sketcher.Constraint("Horizontal", 7, 2, 10, 2))
sketch4.addConstraint(Sketcher.Constraint("Horizontal", 9, 2, 12, 2))
sketch4.addConstraint(Sketcher.Constraint("Horizontal", 11, 2, 14, 2))
sketch4.addConstraint(Sketcher.Constraint("Horizontal", 13, 2, 16, 2))
sketch4.addConstraint(Sketcher.Constraint("Horizontal", 15, 2, 18, 2))
sketch4.addConstraint(Sketcher.Constraint("Horizontal", 17, 2, 20, 2))
sketch4.addConstraint(Sketcher.Constraint("Horizontal", 19, 2, 22, 2))
sketch4.addConstraint(Sketcher.Constraint("Equal", 3, 7))
sketch4.addConstraint(Sketcher.Constraint("Equal", 5, 9))
sketch4.addConstraint(Sketcher.Constraint("Equal", 7, 11))
sketch4.addConstraint(Sketcher.Constraint("Equal", 9, 13))
sketch4.addConstraint(Sketcher.Constraint("Equal", 11, 15))
sketch4.addConstraint(Sketcher.Constraint("Equal", 13, 17))
sketch4.addConstraint(Sketcher.Constraint("Equal", 15, 19))
sketch4.addConstraint(Sketcher.Constraint("Equal", 17, 21))
sketch4.addConstraint(Sketcher.Constraint("Equal", 19, 23))
sketch4.addConstraint(Sketcher.Constraint("DistanceX", 1, 2, 1, 1, Q("50 mm")))
sketch4.addConstraint(Sketcher.Constraint("DistanceY", 0, 2, 0, 1, Q("18 mm")))
sketch4.addConstraint(Sketcher.Constraint("DistanceY", 4, 2, 4, 1, Q("9 mm")))
sketch4.addConstraint(Sketcher.Constraint("DistanceX", 3, 1, 3, 2, Q("1.5 mm")))
sketch4.addConstraint(Sketcher.Constraint("DistanceX", -1, 1, 0, 2, Q("33 mm")))
sketch4.addConstraint(Sketcher.Constraint("DistanceY", -1, 1, 0, 2, Q("141.4 mm")))
pad4 = body.newObject("PartDesign::Pad", "Pad003")
pad4.Profile = sketch4
pad4.Length = 15
pad4.Reversed = True

# Sketch on YZ plane
sketch5 = body.newObject("Sketcher::SketchObject", "Sketch004")
sketch5.AttachmentSupport = (doc.getObject("YZ_Plane"), [""])
sketch5.MapMode = "FlatFace"
sketch5.AttachmentOffset = App.Placement(App.Vector(0, 0, 24.3), App.Rotation())
sketch5.addGeometry(Part.Circle(App.Vector(37.7, 145, 0), App.Vector(0, 0, 1), 1.8), False)
sketch5.addConstraint(Sketcher.Constraint("Diameter", 0, Q("3.5 mm")))
sketch5.addConstraint(Sketcher.Constraint("DistanceY", -1, 1, 0, 3, Q("145 mm")))
sketch5.addConstraint(Sketcher.Constraint("DistanceX", -1, 1, 0, 3, Q("37.7 mm")))
pocket1 = body.newObject("PartDesign::Pocket", "Pocket")
pocket1.Profile = sketch5
pocket1.Type = "UpToFirst"

# Sketch on YZ plane
sketch6 = body.newObject("Sketcher::SketchObject", "Sketch005")
sketch6.AttachmentSupport = (doc.getObject("YZ_Plane"), [""])
sketch6.MapMode = "FlatFace"
sketch6.AttachmentOffset = App.Placement(App.Vector(0, 0, 24.3), App.Rotation())
sketch6.addGeometry(Part.LineSegment(App.Vector(-35.5, 0, 0), App.Vector(-35.5, 4, 0)), False)
sketch6.addGeometry(Part.ArcOfCircle(Part.Circle(App.Vector(-37.3, 4, 0), App.Vector(0, 0, 1), 1.8), math.radians(0), math.radians(180)), False)
sketch6.addGeometry(Part.LineSegment(App.Vector(-39, 4, 0), App.Vector(-39, 0, 0)), False)
sketch6.addGeometry(Part.LineSegment(App.Vector(-39, 0, 0), App.Vector(-35.5, 0, 0)), False)
sketch6.addConstraint(Sketcher.Constraint("Tangent", 0, 2, 1, 1))
sketch6.addConstraint(Sketcher.Constraint("Tangent", 1, 2, 2, 1))
sketch6.addConstraint(Sketcher.Constraint("Coincident", 2, 2, 3, 1))
sketch6.addConstraint(Sketcher.Constraint("Coincident", 3, 2, 0, 1))
sketch6.addConstraint(Sketcher.Constraint("Vertical", 0))
sketch6.addConstraint(Sketcher.Constraint("Vertical", 2))
sketch6.addConstraint(Sketcher.Constraint("Horizontal", 3))
sketch6.addConstraint(Sketcher.Constraint("PointOnObject", 2, 2, -1))
sketch6.addConstraint(Sketcher.Constraint("DistanceY", 0, 1, 0, 2, Q("4 mm")))
sketch6.addConstraint(Sketcher.Constraint("Radius", 1, Q("1.75 mm")))
sketch6.addConstraint(Sketcher.Constraint("DistanceX", 1, 3, -1, 1, Q("37.3 mm")))
pocket2 = body.newObject("PartDesign::Pocket", "Pocket001")
pocket2.Profile = sketch6
pocket2.Type = "UpToFirst"

# Sketch on XZ plane
sketch7 = body.newObject("Sketcher::SketchObject", "Sketch006")
sketch7.AttachmentSupport = (doc.getObject("XZ_Plane"), [""])
sketch7.MapMode = "FlatFace"
sketch7.AttachmentOffset = App.Placement(App.Vector(0, 0, 46), App.Rotation())
sketch7.addGeometry(Part.Circle(App.Vector(-4.3, 118, 0), App.Vector(0, 0, 1), 2.5), False)
sketch7.addGeometry(Part.Circle(App.Vector(-4.3, 59, 0), App.Vector(0, 0, 1), 2.5), False)
sketch7.addGeometry(Part.Circle(App.Vector(-4.3, 24, 0), App.Vector(0, 0, 1), 2.5), False)
sketch7.addConstraint(Sketcher.Constraint("Equal", 0, 1))
sketch7.addConstraint(Sketcher.Constraint("Equal", 1, 2))
sketch7.addConstraint(Sketcher.Constraint("Vertical", 0, 3, 1, 3))
sketch7.addConstraint(Sketcher.Constraint("Vertical", 1, 3, 2, 3))
sketch7.addConstraint(Sketcher.Constraint("Diameter", 0, Q("5 mm")))
sketch7.addConstraint(Sketcher.Constraint("DistanceY", -1, 1, 0, 3, Q("118 mm")))
sketch7.addConstraint(Sketcher.Constraint("DistanceY", -1, 1, 1, 3, Q("59 mm")))
sketch7.addConstraint(Sketcher.Constraint("DistanceY", -1, 1, 2, 3, Q("24 mm")))
sketch7.addConstraint(Sketcher.Constraint("DistanceX", 0, 3, -1, 1, Q("4.3 mm")))
pad5 = body.newObject("PartDesign::Pad", "Pad004")
pad5.Profile = sketch7
pad5.Length = 3

# Sketch on YZ plane
sketch8 = body.newObject("Sketcher::SketchObject", "Sketch007")
sketch8.AttachmentSupport = (doc.getObject("YZ_Plane"), [""])
sketch8.MapMode = "FlatFace"
sketch8.AttachmentOffset = App.Placement(App.Vector(0, 0, 16.3), App.Rotation())
sketch8.addGeometry(Part.LineSegment(App.Vector(44, 0, 0), App.Vector(-44, 0, 0)), False)
sketch8.addGeometry(Part.LineSegment(App.Vector(-44, 0, 0), App.Vector(-44, 9, 0)), False)
sketch8.addGeometry(Part.LineSegment(App.Vector(-44, 9, 0), App.Vector(44, 9, 0)), False)
sketch8.addGeometry(Part.LineSegment(App.Vector(44, 9, 0), App.Vector(44, 0, 0)), False)
sketch8.addConstraint(Sketcher.Constraint("Coincident", 0, 2, 1, 1))
sketch8.addConstraint(Sketcher.Constraint("Coincident", 1, 2, 2, 1))
sketch8.addConstraint(Sketcher.Constraint("Coincident", 2, 2, 3, 1))
sketch8.addConstraint(Sketcher.Constraint("Coincident", 3, 2, 0, 1))
sketch8.addConstraint(Sketcher.Constraint("Horizontal", 0))
sketch8.addConstraint(Sketcher.Constraint("Vertical", 1))
sketch8.addConstraint(Sketcher.Constraint("Horizontal", 2))
sketch8.addConstraint(Sketcher.Constraint("Vertical", 3))
sketch8.addConstraint(Sketcher.Constraint("Symmetric", 0, 2, 3, 2, -1, 1))
sketch8.addConstraint(Sketcher.Constraint("DistanceX", 0, 2, 0, 1, Q("88 mm")))
sketch8.addConstraint(Sketcher.Constraint("DistanceY", 1, 1, 1, 2, Q("9 mm")))
pocket3 = body.newObject("PartDesign::Pocket", "Pocket002")
pocket3.Profile = sketch8
pocket3.Type = "UpToFirst"
pocket3.Reversed = True

doc.recompute()
